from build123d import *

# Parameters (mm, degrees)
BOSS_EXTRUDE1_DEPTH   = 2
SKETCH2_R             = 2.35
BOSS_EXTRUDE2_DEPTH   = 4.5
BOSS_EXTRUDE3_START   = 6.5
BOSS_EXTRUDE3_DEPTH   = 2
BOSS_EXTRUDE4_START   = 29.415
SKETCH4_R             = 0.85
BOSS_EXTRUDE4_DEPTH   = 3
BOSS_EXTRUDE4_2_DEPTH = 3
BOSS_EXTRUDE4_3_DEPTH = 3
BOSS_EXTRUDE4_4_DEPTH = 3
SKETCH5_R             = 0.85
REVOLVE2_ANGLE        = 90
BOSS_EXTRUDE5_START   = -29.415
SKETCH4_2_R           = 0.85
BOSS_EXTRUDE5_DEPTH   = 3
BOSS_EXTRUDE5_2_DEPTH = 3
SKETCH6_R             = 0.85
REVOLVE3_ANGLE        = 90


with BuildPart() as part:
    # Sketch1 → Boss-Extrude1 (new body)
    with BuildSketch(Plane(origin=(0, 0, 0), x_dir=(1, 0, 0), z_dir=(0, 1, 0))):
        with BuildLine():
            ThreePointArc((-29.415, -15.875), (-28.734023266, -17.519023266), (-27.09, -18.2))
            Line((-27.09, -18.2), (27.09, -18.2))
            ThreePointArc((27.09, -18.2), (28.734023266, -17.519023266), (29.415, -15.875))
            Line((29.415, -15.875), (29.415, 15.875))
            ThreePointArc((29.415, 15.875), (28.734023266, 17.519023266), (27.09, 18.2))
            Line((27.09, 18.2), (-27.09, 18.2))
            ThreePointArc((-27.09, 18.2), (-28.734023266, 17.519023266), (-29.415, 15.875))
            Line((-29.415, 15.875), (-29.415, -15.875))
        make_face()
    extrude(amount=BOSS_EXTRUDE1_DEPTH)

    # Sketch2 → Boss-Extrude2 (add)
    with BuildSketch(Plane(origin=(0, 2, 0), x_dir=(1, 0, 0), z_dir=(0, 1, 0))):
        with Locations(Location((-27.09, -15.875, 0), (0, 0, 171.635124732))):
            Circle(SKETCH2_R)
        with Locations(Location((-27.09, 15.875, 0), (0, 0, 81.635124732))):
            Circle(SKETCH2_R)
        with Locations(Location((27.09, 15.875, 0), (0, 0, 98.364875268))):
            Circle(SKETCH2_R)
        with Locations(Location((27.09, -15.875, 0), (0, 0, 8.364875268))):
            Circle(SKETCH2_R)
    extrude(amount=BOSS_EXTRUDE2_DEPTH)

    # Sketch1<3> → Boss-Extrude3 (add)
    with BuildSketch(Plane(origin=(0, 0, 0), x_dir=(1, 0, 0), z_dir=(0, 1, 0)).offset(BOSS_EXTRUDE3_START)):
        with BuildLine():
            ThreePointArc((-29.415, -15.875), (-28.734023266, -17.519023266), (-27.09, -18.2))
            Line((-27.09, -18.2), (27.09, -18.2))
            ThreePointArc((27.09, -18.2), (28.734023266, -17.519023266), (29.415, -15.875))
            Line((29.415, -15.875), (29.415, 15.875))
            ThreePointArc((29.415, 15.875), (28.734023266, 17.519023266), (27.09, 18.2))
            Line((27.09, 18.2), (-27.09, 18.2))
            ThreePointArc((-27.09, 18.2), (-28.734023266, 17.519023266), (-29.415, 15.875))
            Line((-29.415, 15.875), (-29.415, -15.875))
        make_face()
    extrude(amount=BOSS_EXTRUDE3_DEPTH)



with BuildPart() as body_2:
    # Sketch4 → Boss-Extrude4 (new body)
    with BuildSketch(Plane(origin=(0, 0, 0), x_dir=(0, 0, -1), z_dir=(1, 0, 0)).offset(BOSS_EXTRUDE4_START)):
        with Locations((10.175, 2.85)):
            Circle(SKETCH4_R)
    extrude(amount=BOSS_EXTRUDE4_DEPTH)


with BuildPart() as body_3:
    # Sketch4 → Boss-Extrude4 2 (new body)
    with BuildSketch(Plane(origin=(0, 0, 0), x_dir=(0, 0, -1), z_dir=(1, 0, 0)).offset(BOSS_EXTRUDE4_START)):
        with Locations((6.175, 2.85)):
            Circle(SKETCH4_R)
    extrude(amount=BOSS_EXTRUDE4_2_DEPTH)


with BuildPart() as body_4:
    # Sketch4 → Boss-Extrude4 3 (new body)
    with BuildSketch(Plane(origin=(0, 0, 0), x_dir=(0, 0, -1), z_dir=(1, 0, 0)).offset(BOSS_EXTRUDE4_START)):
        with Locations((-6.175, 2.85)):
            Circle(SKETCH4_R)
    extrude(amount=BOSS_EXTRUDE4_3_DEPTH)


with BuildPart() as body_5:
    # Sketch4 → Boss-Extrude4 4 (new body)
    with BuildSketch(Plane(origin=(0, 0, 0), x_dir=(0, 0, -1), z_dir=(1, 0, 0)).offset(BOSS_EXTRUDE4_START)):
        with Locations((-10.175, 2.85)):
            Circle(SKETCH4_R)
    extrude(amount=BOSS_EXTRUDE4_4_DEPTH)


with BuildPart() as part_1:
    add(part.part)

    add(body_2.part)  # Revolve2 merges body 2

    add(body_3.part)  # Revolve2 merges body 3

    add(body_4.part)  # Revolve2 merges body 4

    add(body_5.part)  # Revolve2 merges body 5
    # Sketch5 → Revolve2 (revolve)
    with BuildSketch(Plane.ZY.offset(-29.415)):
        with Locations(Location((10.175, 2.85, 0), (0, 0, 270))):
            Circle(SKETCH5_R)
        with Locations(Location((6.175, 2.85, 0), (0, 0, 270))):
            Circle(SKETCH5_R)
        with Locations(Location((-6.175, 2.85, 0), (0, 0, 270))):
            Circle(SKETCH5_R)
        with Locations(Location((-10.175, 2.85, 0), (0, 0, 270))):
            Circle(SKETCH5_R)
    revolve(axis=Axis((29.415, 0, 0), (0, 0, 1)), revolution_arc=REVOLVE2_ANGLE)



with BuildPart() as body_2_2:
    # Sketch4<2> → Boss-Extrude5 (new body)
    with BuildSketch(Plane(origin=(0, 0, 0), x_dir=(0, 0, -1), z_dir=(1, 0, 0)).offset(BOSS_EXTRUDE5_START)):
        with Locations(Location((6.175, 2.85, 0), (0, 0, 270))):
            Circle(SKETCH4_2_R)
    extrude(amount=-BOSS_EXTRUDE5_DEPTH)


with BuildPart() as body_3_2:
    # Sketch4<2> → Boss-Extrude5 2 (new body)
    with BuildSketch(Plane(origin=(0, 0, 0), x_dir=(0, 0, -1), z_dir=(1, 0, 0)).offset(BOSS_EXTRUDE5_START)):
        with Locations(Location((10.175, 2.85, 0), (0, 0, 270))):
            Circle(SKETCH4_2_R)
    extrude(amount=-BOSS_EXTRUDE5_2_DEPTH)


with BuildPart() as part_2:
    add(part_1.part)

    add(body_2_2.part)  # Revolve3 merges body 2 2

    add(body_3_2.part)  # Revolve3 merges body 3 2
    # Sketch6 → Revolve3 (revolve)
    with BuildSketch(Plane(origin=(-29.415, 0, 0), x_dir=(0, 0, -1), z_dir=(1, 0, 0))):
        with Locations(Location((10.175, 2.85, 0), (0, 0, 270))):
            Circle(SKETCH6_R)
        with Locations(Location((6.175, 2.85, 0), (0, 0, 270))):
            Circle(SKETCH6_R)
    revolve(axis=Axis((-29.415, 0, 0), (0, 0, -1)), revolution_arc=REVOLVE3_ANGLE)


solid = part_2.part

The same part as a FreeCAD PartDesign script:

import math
import FreeCAD as App
import Part
import Sketcher
from FreeCAD import Vector
Q = App.Units.Quantity

doc = App.newDocument("Part")
body = doc.addObject("PartDesign::Body", "Body")

# Sketch on XZ plane
sketch1 = body.newObject("Sketcher::SketchObject", "Sketch")
sketch1.AttachmentSupport = (doc.getObject("XZ_Plane"), [""])
sketch1.MapMode = "FlatFace"
sketch1.addGeometry([
    Part.ArcOfCircle(Part.Circle(Vector(-27.1, 15.9, 0), Vector(0, 0, 1), 2.3), math.radians(90), math.radians(180)),  # 0
    Part.LineSegment(Vector(-27.1, 18.2, 0), Vector(27.1, 18.2, 0)),  # 1
    Part.ArcOfCircle(Part.Circle(Vector(27.1, 15.9, 0), Vector(0, 0, 1), 2.3), math.radians(0), math.radians(90)),  # 2
    Part.LineSegment(Vector(29.4, 15.9, 0), Vector(29.4, -15.9, 0)),  # 3
    Part.ArcOfCircle(Part.Circle(Vector(27.1, -15.9, 0), Vector(0, 0, 1), 2.3), math.radians(-90), math.radians(0)),  # 4
    Part.LineSegment(Vector(27.1, -18.2, 0), Vector(-27.1, -18.2, 0)),  # 5
    Part.ArcOfCircle(Part.Circle(Vector(-27.1, -15.9, 0), Vector(0, 0, 1), 2.3), math.radians(-180), math.radians(-90)),  # 6
    Part.LineSegment(Vector(-29.4, -15.9, 0), Vector(-29.4, 15.9, 0)),  # 7
], False)
sketch1.addConstraint([
    Sketcher.Constraint("Tangent", 0, 1, 1, 1),
    Sketcher.Constraint("Tangent", 1, 2, 2, 2),
    Sketcher.Constraint("Tangent", 2, 1, 3, 1),
    Sketcher.Constraint("Tangent", 3, 2, 4, 2),
    Sketcher.Constraint("Tangent", 4, 1, 5, 1),
    Sketcher.Constraint("Tangent", 5, 2, 6, 2),
    Sketcher.Constraint("Tangent", 6, 1, 7, 1),
    Sketcher.Constraint("Tangent", 7, 2, 0, 2),
    Sketcher.Constraint("Horizontal", 1),
    Sketcher.Constraint("Vertical", 3),
    Sketcher.Constraint("Horizontal", 5),
    Sketcher.Constraint("Vertical", 7),
    Sketcher.Constraint("Equal", 0, 2),
    Sketcher.Constraint("Equal", 2, 4),
    Sketcher.Constraint("Equal", 4, 6),
    Sketcher.Constraint("Symmetric", 0, 3, 4, 3, -1, 1),
    Sketcher.Constraint("Radius", 0, Q("2.325 mm")),
    Sketcher.Constraint("DistanceX", 1, 1, 1, 2, Q("54.18 mm")),
    Sketcher.Constraint("DistanceY", 3, 2, 3, 1, Q("31.75 mm")),
])
pad1 = body.newObject("PartDesign::Pad", "Pad")
pad1.Profile = sketch1
pad1.Length = 2
pad1.Reversed = True

# Sketch on XZ plane
sketch2 = body.newObject("Sketcher::SketchObject", "Sketch001")
sketch2.AttachmentSupport = (doc.getObject("XZ_Plane"), [""])
sketch2.MapMode = "FlatFace"
sketch2.AttachmentOffset = App.Placement(Vector(0, 0, -2), App.Rotation())
sketch2.addGeometry([
    Part.Circle(Vector(-27.1, 15.9, 0), Vector(0, 0, 1), 2.4),
    Part.Circle(Vector(-27.1, -15.9, 0), Vector(0, 0, 1), 2.4),
    Part.Circle(Vector(27.1, -15.9, 0), Vector(0, 0, 1), 2.4),
    Part.Circle(Vector(27.1, 15.9, 0), Vector(0, 0, 1), 2.4),
], False)
sketch2.addConstraint([
    Sketcher.Constraint("Equal", 0, 1),
    Sketcher.Constraint("Equal", 1, 2),
    Sketcher.Constraint("Equal", 2, 3),
    Sketcher.Constraint("Symmetric", 0, 3, 2, 3, -1, 1),
    Sketcher.Constraint("Symmetric", 1, 3, 3, 3, -1, 1),
    Sketcher.Constraint("Symmetric", 1, 3, 2, 3, -2),
    Sketcher.Constraint("Diameter", 0, Q("4.7 mm")),
    Sketcher.Constraint("DistanceX", 0, 3, -1, 1, Q("27.09 mm")),
    Sketcher.Constraint("DistanceY", 1, 3, 0, 3, Q("31.75 mm")),
])
pad2 = body.newObject("PartDesign::Pad", "Pad001")
pad2.Profile = sketch2
pad2.Length = 4.5
pad2.Reversed = True

# Sketch on XZ plane
sketch3 = body.newObject("Sketcher::SketchObject", "Sketch002")
sketch3.AttachmentSupport = (doc.getObject("XZ_Plane"), [""])
sketch3.MapMode = "FlatFace"
sketch3.AttachmentOffset = App.Placement(Vector(0, 0, -6.5), App.Rotation())
sketch3.addGeometry([
    Part.ArcOfCircle(Part.Circle(Vector(-27.1, 15.9, 0), Vector(0, 0, 1), 2.3), math.radians(90), math.radians(180)),  # 0
    Part.LineSegment(Vector(-27.1, 18.2, 0), Vector(27.1, 18.2, 0)),  # 1
    Part.ArcOfCircle(Part.Circle(Vector(27.1, 15.9, 0), Vector(0, 0, 1), 2.3), math.radians(0), math.radians(90)),  # 2
    Part.LineSegment(Vector(29.4, 15.9, 0), Vector(29.4, -15.9, 0)),  # 3
    Part.ArcOfCircle(Part.Circle(Vector(27.1, -15.9, 0), Vector(0, 0, 1), 2.3), math.radians(-90), math.radians(0)),  # 4
    Part.LineSegment(Vector(27.1, -18.2, 0), Vector(-27.1, -18.2, 0)),  # 5
    Part.ArcOfCircle(Part.Circle(Vector(-27.1, -15.9, 0), Vector(0, 0, 1), 2.3), math.radians(-180), math.radians(-90)),  # 6
    Part.LineSegment(Vector(-29.4, -15.9, 0), Vector(-29.4, 15.9, 0)),  # 7
], False)
sketch3.addConstraint([
    Sketcher.Constraint("Tangent", 0, 1, 1, 1),
    Sketcher.Constraint("Tangent", 1, 2, 2, 2),
    Sketcher.Constraint("Tangent", 2, 1, 3, 1),
    Sketcher.Constraint("Tangent", 3, 2, 4, 2),
    Sketcher.Constraint("Tangent", 4, 1, 5, 1),
    Sketcher.Constraint("Tangent", 5, 2, 6, 2),
    Sketcher.Constraint("Tangent", 6, 1, 7, 1),
    Sketcher.Constraint("Tangent", 7, 2, 0, 2),
    Sketcher.Constraint("Horizontal", 1),
    Sketcher.Constraint("Vertical", 3),
    Sketcher.Constraint("Horizontal", 5),
    Sketcher.Constraint("Vertical", 7),
    Sketcher.Constraint("Equal", 0, 2),
    Sketcher.Constraint("Equal", 2, 4),
    Sketcher.Constraint("Equal", 4, 6),
    Sketcher.Constraint("Symmetric", 0, 3, 4, 3, -1, 1),
    Sketcher.Constraint("Radius", 0, Q("2.325 mm")),
    Sketcher.Constraint("DistanceX", 1, 1, 1, 2, Q("54.18 mm")),
    Sketcher.Constraint("DistanceY", 3, 2, 3, 1, Q("31.75 mm")),
])
pad3 = body.newObject("PartDesign::Pad", "Pad002")
pad3.Profile = sketch3
pad3.Length = 2
pad3.Reversed = True
body2 = doc.addObject("PartDesign::Body", "Body001")

# Sketch on YZ plane
sketch4 = body2.newObject("Sketcher::SketchObject", "Sketch003")
sketch4.AttachmentSupport = (doc.getObject("YZ_Plane001"), [""])
sketch4.MapMode = "FlatFace"
sketch4.AttachmentOffset = App.Placement(Vector(0, 0, 29.415), App.Rotation())
sketch4.addGeometry(Part.Circle(Vector(2.9, -10.2, 0), Vector(0, 0, 1), 0.8), False)
sketch4.addConstraint([
    Sketcher.Constraint("Diameter", 0, Q("1.7 mm")),
    Sketcher.Constraint("DistanceX", -1, 1, 0, 3, Q("2.85 mm")),
    Sketcher.Constraint("DistanceY", 0, 3, -1, 1, Q("10.175 mm")),
])
pad4 = body2.newObject("PartDesign::Pad", "Pad003")
pad4.Profile = sketch4
pad4.Length = 3
body3 = doc.addObject("PartDesign::Body", "Body002")

# Sketch on YZ plane
sketch5 = body3.newObject("Sketcher::SketchObject", "Sketch004")
sketch5.AttachmentSupport = (doc.getObject("YZ_Plane002"), [""])
sketch5.MapMode = "FlatFace"
sketch5.AttachmentOffset = App.Placement(Vector(0, 0, 29.415), App.Rotation())
sketch5.addGeometry(Part.Circle(Vector(2.9, -6.2, 0), Vector(0, 0, 1), 0.8), False)
sketch5.addConstraint([
    Sketcher.Constraint("Diameter", 0, Q("1.7 mm")),
    Sketcher.Constraint("DistanceX", -1, 1, 0, 3, Q("2.85 mm")),
    Sketcher.Constraint("DistanceY", 0, 3, -1, 1, Q("6.175 mm")),
])
pad5 = body3.newObject("PartDesign::Pad", "Pad004")
pad5.Profile = sketch5
pad5.Length = 3
body4 = doc.addObject("PartDesign::Body", "Body003")

# Sketch on YZ plane
sketch6 = body4.newObject("Sketcher::SketchObject", "Sketch005")
sketch6.AttachmentSupport = (doc.getObject("YZ_Plane003"), [""])
sketch6.MapMode = "FlatFace"
sketch6.AttachmentOffset = App.Placement(Vector(0, 0, 29.415), App.Rotation())
sketch6.addGeometry(Part.Circle(Vector(2.9, 6.2, 0), Vector(0, 0, 1), 0.8), False)
sketch6.addConstraint([
    Sketcher.Constraint("Diameter", 0, Q("1.7 mm")),
    Sketcher.Constraint("DistanceX", -1, 1, 0, 3, Q("2.85 mm")),
    Sketcher.Constraint("DistanceY", -1, 1, 0, 3, Q("6.175 mm")),
])
pad6 = body4.newObject("PartDesign::Pad", "Pad005")
pad6.Profile = sketch6
pad6.Length = 3
body5 = doc.addObject("PartDesign::Body", "Body004")

# Sketch on YZ plane
sketch7 = body5.newObject("Sketcher::SketchObject", "Sketch006")
sketch7.AttachmentSupport = (doc.getObject("YZ_Plane004"), [""])
sketch7.MapMode = "FlatFace"
sketch7.AttachmentOffset = App.Placement(Vector(0, 0, 29.415), App.Rotation())
sketch7.addGeometry(Part.Circle(Vector(2.9, 10.2, 0), Vector(0, 0, 1), 0.8), False)
sketch7.addConstraint([
    Sketcher.Constraint("Diameter", 0, Q("1.7 mm")),
    Sketcher.Constraint("DistanceX", -1, 1, 0, 3, Q("2.85 mm")),
    Sketcher.Constraint("DistanceY", -1, 1, 0, 3, Q("10.175 mm")),
])
pad7 = body5.newObject("PartDesign::Pad", "Pad006")
pad7.Profile = sketch7
pad7.Length = 3
body.AllowCompound = True
doc.recompute()

boolean = body.newObject("PartDesign::Boolean", "Boolean")
boolean.Type = "Fuse"
boolean.addObjects([body2])
doc.recompute()

boolean2 = body.newObject("PartDesign::Boolean", "Boolean001")
boolean2.Type = "Fuse"
boolean2.addObjects([body3])
doc.recompute()

boolean3 = body.newObject("PartDesign::Boolean", "Boolean002")
boolean3.Type = "Fuse"
boolean3.addObjects([body4])
doc.recompute()

boolean4 = body.newObject("PartDesign::Boolean", "Boolean003")
boolean4.Type = "Fuse"
boolean4.addObjects([body5])

# Sketch on YZ plane
sketch8 = body.newObject("Sketcher::SketchObject", "Sketch007")
sketch8.AttachmentSupport = (doc.getObject("YZ_Plane"), [""])
sketch8.MapMode = "FlatFace"
sketch8.AttachmentOffset = App.Placement(Vector(0, 0, 29.415), App.Rotation())
sketch8.addGeometry([
    Part.Circle(Vector(2.9, 10.2, 0), Vector(0, 0, 1), 0.8),
    Part.Circle(Vector(2.9, 6.2, 0), Vector(0, 0, 1), 0.8),
    Part.Circle(Vector(2.9, -6.2, 0), Vector(0, 0, 1), 0.8),
    Part.Circle(Vector(2.9, -10.2, 0), Vector(0, 0, 1), 0.8),
], False)
sketch8.addConstraint([
    Sketcher.Constraint("Equal", 0, 1),
    Sketcher.Constraint("Equal", 1, 2),
    Sketcher.Constraint("Equal", 2, 3),
    Sketcher.Constraint("Symmetric", 1, 3, 2, 3, -1),
    Sketcher.Constraint("Symmetric", 0, 3, 3, 3, -1),
    Sketcher.Constraint("Vertical", 0, 3, 1, 3),
    Sketcher.Constraint("Diameter", 0, Q("1.7 mm")),
    Sketcher.Constraint("DistanceY", 1, 3, 0, 3, Q("4 mm")),
    Sketcher.Constraint("DistanceX", -1, 1, 0, 3, Q("2.85 mm")),
    Sketcher.Constraint("DistanceY", 2, 3, 1, 3, Q("12.35 mm")),
])
revolution = body.newObject("PartDesign::Revolution", "Revolution")
revolution.Profile = sketch8
revolution.ReferenceAxis = (sketch8, ["V_Axis"])
revolution.Angle = 90
body6 = doc.addObject("PartDesign::Body", "Body005")

# Sketch on YZ plane
sketch9 = body6.newObject("Sketcher::SketchObject", "Sketch008")
sketch9.AttachmentSupport = (doc.getObject("YZ_Plane005"), [""])
sketch9.MapMode = "FlatFace"
sketch9.AttachmentOffset = App.Placement(Vector(0, 0, -29.415), App.Rotation())
sketch9.addGeometry(Part.Circle(Vector(2.9, -6.2, 0), Vector(0, 0, 1), 0.8), False)
sketch9.addConstraint([
    Sketcher.Constraint("Diameter", 0, Q("1.7 mm")),
    Sketcher.Constraint("DistanceX", -1, 1, 0, 3, Q("2.85 mm")),
    Sketcher.Constraint("DistanceY", 0, 3, -1, 1, Q("6.175 mm")),
])
pad8 = body6.newObject("PartDesign::Pad", "Pad007")
pad8.Profile = sketch9
pad8.Length = 3
pad8.Reversed = True
body7 = doc.addObject("PartDesign::Body", "Body006")

# Sketch on YZ plane
sketch10 = body7.newObject("Sketcher::SketchObject", "Sketch009")
sketch10.AttachmentSupport = (doc.getObject("YZ_Plane006"), [""])
sketch10.MapMode = "FlatFace"
sketch10.AttachmentOffset = App.Placement(Vector(0, 0, -29.415), App.Rotation())
sketch10.addGeometry(Part.Circle(Vector(2.9, -10.2, 0), Vector(0, 0, 1), 0.8), False)
sketch10.addConstraint([
    Sketcher.Constraint("Diameter", 0, Q("1.7 mm")),
    Sketcher.Constraint("DistanceX", -1, 1, 0, 3, Q("2.85 mm")),
    Sketcher.Constraint("DistanceY", 0, 3, -1, 1, Q("10.175 mm")),
])
pad9 = body7.newObject("PartDesign::Pad", "Pad008")
pad9.Profile = sketch10
pad9.Length = 3
pad9.Reversed = True
body.AllowCompound = True
doc.recompute()

boolean5 = body.newObject("PartDesign::Boolean", "Boolean004")
boolean5.Type = "Fuse"
boolean5.addObjects([body6])
doc.recompute()

boolean6 = body.newObject("PartDesign::Boolean", "Boolean005")
boolean6.Type = "Fuse"
boolean6.addObjects([body7])

# Sketch on YZ plane
sketch11 = body.newObject("Sketcher::SketchObject", "Sketch010")
sketch11.AttachmentSupport = (doc.getObject("YZ_Plane"), [""])
sketch11.MapMode = "FlatFace"
sketch11.AttachmentOffset = App.Placement(Vector(0, 0, -29.415), App.Rotation())
sketch11.addGeometry([
    Part.Circle(Vector(2.9, -10.2, 0), Vector(0, 0, 1), 0.8),
    Part.Circle(Vector(2.9, -6.2, 0), Vector(0, 0, 1), 0.8),
], False)
sketch11.addConstraint([
    Sketcher.Constraint("Equal", 0, 1),
    Sketcher.Constraint("Vertical", 0, 3, 1, 3),
    Sketcher.Constraint("Diameter", 0, Q("1.7 mm")),
    Sketcher.Constraint("DistanceY", 0, 3, 1, 3, Q("4 mm")),
    Sketcher.Constraint("DistanceX", -1, 1, 0, 3, Q("2.85 mm")),
    Sketcher.Constraint("DistanceY", 0, 3, -1, 1, Q("10.175 mm")),
])
revolution2 = body.newObject("PartDesign::Revolution", "Revolution001")
revolution2.Profile = sketch11
revolution2.ReferenceAxis = (sketch11, ["V_Axis"])
revolution2.Angle = 90
revolution2.Reversed = True

doc.recompute()
